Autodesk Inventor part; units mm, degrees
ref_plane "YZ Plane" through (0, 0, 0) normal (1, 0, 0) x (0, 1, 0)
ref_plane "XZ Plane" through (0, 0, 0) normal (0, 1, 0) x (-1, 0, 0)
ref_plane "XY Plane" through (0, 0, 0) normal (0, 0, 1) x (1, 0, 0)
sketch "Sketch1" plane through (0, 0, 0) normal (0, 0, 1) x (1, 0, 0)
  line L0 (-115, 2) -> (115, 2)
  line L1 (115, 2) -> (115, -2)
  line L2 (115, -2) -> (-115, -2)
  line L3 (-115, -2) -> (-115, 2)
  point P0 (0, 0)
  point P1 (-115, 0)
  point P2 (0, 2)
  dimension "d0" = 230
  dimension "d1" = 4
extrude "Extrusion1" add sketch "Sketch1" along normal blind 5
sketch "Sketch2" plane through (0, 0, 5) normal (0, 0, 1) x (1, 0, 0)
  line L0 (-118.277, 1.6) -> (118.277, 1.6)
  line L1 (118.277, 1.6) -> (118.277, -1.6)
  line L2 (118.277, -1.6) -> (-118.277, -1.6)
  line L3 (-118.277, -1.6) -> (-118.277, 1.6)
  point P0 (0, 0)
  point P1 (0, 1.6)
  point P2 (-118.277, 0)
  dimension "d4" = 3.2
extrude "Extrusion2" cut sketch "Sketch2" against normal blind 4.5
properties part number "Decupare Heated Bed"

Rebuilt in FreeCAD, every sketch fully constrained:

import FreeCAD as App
import Part
import Sketcher

V = App.Vector


def add_polygon(sketch, points):
    """Adds a closed chain of lines whose ends are joined by coincident constraints."""
    first, n = sketch.GeometryCount, len(points)
    for a, b in zip(points, points[1:] + points[:1]):
        sketch.addGeometry(Part.LineSegment(App.Vector(*a, 0), App.Vector(*b, 0)), False)
    for i in range(n):
        sketch.addConstraint(Sketcher.Constraint("Coincident", first + i, 2, first + (i + 1) % n, 1))

doc = App.newDocument("Part")
body = doc.addObject("PartDesign::Body", "Body")

# Sketch on XY plane
sketch1 = body.newObject("Sketcher::SketchObject", "Sketch")
sketch1.AttachmentSupport = (doc.getObject("XY_Plane"), [""])
sketch1.MapMode = "FlatFace"
add_polygon(sketch1, [(115, 2), (-115, 2), (-115, -2), (115, -2)])  # lines 0-3
sketch1.addConstraint([
    Sketcher.Constraint("Horizontal", 0),
    Sketcher.Constraint("Vertical", 1),
    Sketcher.Constraint("Horizontal", 2),
    Sketcher.Constraint("Vertical", 3),
    Sketcher.Constraint("Symmetric", 0, 2, 2, 2, -1, 1),
    Sketcher.Constraint("DistanceX", 0, 2, 0, 1, 230.0),
    Sketcher.Constraint("DistanceY", 1, 2, 1, 1, 4.0),
])
pad1 = body.newObject("PartDesign::Pad", "Pad")
pad1.Profile = sketch1
pad1.Length = 5

# Sketch on XY plane
sketch2 = body.newObject("Sketcher::SketchObject", "Sketch001")
sketch2.AttachmentSupport = (doc.getObject("XY_Plane"), [""])
sketch2.MapMode = "FlatFace"
sketch2.AttachmentOffset = App.Placement(V(0, 0, 5), App.Rotation())
add_polygon(sketch2, [(118.3, 1.6), (-118.3, 1.6), (-118.3, -1.6), (118.3, -1.6)])  # lines 0-3
sketch2.addConstraint([
    Sketcher.Constraint("Horizontal", 0),
    Sketcher.Constraint("Vertical", 1),
    Sketcher.Constraint("Horizontal", 2),
    Sketcher.Constraint("Vertical", 3),
    Sketcher.Constraint("Symmetric", 0, 2, 2, 2, -1, 1),
    Sketcher.Constraint("DistanceY", 1, 2, 1, 1, 3.2),
    Sketcher.Constraint("DistanceX", 0, 2, 0, 1, 236.554),
])
pocket1 = body.newObject("PartDesign::Pocket", "Pocket")
pocket1.Profile = sketch2
pocket1.Length = 4.5

doc.recompute()
